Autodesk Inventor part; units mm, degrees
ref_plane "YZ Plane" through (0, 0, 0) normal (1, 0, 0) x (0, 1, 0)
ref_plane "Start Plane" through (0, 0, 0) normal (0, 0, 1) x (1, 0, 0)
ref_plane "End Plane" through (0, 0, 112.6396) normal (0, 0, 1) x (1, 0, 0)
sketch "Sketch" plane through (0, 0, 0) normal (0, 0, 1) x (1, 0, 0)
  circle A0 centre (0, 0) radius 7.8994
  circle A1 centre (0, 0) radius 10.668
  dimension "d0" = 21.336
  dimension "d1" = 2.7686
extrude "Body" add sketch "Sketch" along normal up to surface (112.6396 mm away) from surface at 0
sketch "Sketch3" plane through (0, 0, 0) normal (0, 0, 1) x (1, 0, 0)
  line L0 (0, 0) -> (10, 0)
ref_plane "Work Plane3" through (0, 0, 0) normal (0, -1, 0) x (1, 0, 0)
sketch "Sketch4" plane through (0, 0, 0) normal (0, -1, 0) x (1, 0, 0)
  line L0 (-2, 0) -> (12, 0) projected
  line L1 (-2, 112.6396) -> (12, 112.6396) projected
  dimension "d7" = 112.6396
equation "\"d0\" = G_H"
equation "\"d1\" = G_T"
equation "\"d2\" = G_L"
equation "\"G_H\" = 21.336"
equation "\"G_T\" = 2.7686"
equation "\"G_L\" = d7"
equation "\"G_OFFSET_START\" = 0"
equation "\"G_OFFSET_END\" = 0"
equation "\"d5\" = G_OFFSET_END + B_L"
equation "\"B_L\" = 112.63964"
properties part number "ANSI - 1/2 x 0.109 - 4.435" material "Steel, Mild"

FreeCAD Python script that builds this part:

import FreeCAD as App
import Part
import Sketcher

V = App.Vector
Q = App.Units.Quantity

doc = App.newDocument("Part")
body = doc.addObject("PartDesign::Body", "Body")

# Sketch on XY plane
sketch1 = body.newObject("Sketcher::SketchObject", "Sketch")
sketch1.AttachmentSupport = (doc.getObject("XY_Plane"), [""])
sketch1.MapMode = "FlatFace"
sketch1.addGeometry([
    Part.Circle(V(0, 0, 0), V(0, 0, 1), 11),
    Part.Circle(V(0, 0, 0), V(0, 0, 1), 8),
], False)
sketch1.addConstraint([
    Sketcher.Constraint("Coincident", 0, 3, -1, 1),
    Sketcher.Constraint("Coincident", 1, 3, -1, 1),
    Sketcher.Constraint("Diameter", 0, Q("0.84 in")),
    Sketcher.Constraint("Diameter", 1, Q("0.622 in")),
])
pad1 = body.newObject("PartDesign::Pad", "Pad")
pad1.Profile = sketch1
pad1.Length = 112.6396

doc.recompute()
